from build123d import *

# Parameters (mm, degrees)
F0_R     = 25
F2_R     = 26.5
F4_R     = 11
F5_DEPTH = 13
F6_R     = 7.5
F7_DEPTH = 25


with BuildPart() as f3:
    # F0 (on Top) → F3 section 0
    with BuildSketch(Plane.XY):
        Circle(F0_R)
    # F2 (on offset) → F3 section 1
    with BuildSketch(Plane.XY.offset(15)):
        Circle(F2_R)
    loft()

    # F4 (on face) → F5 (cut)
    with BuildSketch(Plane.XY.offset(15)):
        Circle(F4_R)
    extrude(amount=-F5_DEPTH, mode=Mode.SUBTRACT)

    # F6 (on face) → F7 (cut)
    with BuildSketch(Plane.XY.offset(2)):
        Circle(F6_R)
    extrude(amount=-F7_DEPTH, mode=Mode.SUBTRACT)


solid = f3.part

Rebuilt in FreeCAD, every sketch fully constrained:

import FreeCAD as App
import Part
import Sketcher

V = App.Vector

doc = App.newDocument("Part")
body = doc.addObject("PartDesign::Body", "Body")

sketch1 = body.newObject("Sketcher::SketchObject", "Sketch")
sketch1.AttachmentSupport = (doc.getObject("XY_Plane"), [""])
sketch1.MapMode = "FlatFace"
sketch1.addGeometry(Part.Circle(V(0, 0, 0), V(0, 0, 1), 25), False)
sketch1.addConstraint([
    Sketcher.Constraint("Coincident", 0, 3, -1, 1),
    Sketcher.Constraint("Diameter", 0, 50.0),
])

sketch2 = body.newObject("Sketcher::SketchObject", "Sketch001")
sketch2.AttachmentSupport = (doc.getObject("XY_Plane"), [""])
sketch2.MapMode = "FlatFace"
sketch2.AttachmentOffset = App.Placement(V(0, 0, 15), App.Rotation())
sketch2.addGeometry(Part.Circle(V(0, 0, 0), V(0, 0, 1), 26.5), False)
sketch2.addConstraint([
    Sketcher.Constraint("Coincident", 0, 3, -1, 1),
    Sketcher.Constraint("Diameter", 0, 53.0),
])

additiveloft = body.newObject("PartDesign::AdditiveLoft", "AdditiveLoft")
additiveloft.Profile = sketch1
additiveloft.Sections = [sketch2]

sketch3 = body.newObject("Sketcher::SketchObject", "Sketch002")
sketch3.AttachmentSupport = (doc.getObject("XY_Plane"), [""])
sketch3.MapMode = "FlatFace"
sketch3.AttachmentOffset = App.Placement(V(0, 0, 15), App.Rotation())
sketch3.addGeometry(Part.Circle(V(0, 0, 0), V(0, 0, 1), 11), False)
sketch3.addConstraint([
    Sketcher.Constraint("Coincident", 0, 3, -1, 1),
    Sketcher.Constraint("Diameter", 0, 22.0),
])
pocket1 = body.newObject("PartDesign::Pocket", "Pocket")
pocket1.Profile = sketch3
pocket1.Length = 13

sketch4 = body.newObject("Sketcher::SketchObject", "Sketch003")
sketch4.AttachmentSupport = (doc.getObject("XY_Plane"), [""])
sketch4.MapMode = "FlatFace"
sketch4.AttachmentOffset = App.Placement(V(0, 0, 2), App.Rotation())
sketch4.addGeometry(Part.Circle(V(0, 0, 0), V(0, 0, 1), 7.5), False)
sketch4.addConstraint([
    Sketcher.Constraint("Coincident", 0, 3, -1, 1),
    Sketcher.Constraint("Diameter", 0, 15.0),
])
pocket2 = body.newObject("PartDesign::Pocket", "Pocket001")
pocket2.Profile = sketch4
pocket2.Length = 25

doc.recompute()
